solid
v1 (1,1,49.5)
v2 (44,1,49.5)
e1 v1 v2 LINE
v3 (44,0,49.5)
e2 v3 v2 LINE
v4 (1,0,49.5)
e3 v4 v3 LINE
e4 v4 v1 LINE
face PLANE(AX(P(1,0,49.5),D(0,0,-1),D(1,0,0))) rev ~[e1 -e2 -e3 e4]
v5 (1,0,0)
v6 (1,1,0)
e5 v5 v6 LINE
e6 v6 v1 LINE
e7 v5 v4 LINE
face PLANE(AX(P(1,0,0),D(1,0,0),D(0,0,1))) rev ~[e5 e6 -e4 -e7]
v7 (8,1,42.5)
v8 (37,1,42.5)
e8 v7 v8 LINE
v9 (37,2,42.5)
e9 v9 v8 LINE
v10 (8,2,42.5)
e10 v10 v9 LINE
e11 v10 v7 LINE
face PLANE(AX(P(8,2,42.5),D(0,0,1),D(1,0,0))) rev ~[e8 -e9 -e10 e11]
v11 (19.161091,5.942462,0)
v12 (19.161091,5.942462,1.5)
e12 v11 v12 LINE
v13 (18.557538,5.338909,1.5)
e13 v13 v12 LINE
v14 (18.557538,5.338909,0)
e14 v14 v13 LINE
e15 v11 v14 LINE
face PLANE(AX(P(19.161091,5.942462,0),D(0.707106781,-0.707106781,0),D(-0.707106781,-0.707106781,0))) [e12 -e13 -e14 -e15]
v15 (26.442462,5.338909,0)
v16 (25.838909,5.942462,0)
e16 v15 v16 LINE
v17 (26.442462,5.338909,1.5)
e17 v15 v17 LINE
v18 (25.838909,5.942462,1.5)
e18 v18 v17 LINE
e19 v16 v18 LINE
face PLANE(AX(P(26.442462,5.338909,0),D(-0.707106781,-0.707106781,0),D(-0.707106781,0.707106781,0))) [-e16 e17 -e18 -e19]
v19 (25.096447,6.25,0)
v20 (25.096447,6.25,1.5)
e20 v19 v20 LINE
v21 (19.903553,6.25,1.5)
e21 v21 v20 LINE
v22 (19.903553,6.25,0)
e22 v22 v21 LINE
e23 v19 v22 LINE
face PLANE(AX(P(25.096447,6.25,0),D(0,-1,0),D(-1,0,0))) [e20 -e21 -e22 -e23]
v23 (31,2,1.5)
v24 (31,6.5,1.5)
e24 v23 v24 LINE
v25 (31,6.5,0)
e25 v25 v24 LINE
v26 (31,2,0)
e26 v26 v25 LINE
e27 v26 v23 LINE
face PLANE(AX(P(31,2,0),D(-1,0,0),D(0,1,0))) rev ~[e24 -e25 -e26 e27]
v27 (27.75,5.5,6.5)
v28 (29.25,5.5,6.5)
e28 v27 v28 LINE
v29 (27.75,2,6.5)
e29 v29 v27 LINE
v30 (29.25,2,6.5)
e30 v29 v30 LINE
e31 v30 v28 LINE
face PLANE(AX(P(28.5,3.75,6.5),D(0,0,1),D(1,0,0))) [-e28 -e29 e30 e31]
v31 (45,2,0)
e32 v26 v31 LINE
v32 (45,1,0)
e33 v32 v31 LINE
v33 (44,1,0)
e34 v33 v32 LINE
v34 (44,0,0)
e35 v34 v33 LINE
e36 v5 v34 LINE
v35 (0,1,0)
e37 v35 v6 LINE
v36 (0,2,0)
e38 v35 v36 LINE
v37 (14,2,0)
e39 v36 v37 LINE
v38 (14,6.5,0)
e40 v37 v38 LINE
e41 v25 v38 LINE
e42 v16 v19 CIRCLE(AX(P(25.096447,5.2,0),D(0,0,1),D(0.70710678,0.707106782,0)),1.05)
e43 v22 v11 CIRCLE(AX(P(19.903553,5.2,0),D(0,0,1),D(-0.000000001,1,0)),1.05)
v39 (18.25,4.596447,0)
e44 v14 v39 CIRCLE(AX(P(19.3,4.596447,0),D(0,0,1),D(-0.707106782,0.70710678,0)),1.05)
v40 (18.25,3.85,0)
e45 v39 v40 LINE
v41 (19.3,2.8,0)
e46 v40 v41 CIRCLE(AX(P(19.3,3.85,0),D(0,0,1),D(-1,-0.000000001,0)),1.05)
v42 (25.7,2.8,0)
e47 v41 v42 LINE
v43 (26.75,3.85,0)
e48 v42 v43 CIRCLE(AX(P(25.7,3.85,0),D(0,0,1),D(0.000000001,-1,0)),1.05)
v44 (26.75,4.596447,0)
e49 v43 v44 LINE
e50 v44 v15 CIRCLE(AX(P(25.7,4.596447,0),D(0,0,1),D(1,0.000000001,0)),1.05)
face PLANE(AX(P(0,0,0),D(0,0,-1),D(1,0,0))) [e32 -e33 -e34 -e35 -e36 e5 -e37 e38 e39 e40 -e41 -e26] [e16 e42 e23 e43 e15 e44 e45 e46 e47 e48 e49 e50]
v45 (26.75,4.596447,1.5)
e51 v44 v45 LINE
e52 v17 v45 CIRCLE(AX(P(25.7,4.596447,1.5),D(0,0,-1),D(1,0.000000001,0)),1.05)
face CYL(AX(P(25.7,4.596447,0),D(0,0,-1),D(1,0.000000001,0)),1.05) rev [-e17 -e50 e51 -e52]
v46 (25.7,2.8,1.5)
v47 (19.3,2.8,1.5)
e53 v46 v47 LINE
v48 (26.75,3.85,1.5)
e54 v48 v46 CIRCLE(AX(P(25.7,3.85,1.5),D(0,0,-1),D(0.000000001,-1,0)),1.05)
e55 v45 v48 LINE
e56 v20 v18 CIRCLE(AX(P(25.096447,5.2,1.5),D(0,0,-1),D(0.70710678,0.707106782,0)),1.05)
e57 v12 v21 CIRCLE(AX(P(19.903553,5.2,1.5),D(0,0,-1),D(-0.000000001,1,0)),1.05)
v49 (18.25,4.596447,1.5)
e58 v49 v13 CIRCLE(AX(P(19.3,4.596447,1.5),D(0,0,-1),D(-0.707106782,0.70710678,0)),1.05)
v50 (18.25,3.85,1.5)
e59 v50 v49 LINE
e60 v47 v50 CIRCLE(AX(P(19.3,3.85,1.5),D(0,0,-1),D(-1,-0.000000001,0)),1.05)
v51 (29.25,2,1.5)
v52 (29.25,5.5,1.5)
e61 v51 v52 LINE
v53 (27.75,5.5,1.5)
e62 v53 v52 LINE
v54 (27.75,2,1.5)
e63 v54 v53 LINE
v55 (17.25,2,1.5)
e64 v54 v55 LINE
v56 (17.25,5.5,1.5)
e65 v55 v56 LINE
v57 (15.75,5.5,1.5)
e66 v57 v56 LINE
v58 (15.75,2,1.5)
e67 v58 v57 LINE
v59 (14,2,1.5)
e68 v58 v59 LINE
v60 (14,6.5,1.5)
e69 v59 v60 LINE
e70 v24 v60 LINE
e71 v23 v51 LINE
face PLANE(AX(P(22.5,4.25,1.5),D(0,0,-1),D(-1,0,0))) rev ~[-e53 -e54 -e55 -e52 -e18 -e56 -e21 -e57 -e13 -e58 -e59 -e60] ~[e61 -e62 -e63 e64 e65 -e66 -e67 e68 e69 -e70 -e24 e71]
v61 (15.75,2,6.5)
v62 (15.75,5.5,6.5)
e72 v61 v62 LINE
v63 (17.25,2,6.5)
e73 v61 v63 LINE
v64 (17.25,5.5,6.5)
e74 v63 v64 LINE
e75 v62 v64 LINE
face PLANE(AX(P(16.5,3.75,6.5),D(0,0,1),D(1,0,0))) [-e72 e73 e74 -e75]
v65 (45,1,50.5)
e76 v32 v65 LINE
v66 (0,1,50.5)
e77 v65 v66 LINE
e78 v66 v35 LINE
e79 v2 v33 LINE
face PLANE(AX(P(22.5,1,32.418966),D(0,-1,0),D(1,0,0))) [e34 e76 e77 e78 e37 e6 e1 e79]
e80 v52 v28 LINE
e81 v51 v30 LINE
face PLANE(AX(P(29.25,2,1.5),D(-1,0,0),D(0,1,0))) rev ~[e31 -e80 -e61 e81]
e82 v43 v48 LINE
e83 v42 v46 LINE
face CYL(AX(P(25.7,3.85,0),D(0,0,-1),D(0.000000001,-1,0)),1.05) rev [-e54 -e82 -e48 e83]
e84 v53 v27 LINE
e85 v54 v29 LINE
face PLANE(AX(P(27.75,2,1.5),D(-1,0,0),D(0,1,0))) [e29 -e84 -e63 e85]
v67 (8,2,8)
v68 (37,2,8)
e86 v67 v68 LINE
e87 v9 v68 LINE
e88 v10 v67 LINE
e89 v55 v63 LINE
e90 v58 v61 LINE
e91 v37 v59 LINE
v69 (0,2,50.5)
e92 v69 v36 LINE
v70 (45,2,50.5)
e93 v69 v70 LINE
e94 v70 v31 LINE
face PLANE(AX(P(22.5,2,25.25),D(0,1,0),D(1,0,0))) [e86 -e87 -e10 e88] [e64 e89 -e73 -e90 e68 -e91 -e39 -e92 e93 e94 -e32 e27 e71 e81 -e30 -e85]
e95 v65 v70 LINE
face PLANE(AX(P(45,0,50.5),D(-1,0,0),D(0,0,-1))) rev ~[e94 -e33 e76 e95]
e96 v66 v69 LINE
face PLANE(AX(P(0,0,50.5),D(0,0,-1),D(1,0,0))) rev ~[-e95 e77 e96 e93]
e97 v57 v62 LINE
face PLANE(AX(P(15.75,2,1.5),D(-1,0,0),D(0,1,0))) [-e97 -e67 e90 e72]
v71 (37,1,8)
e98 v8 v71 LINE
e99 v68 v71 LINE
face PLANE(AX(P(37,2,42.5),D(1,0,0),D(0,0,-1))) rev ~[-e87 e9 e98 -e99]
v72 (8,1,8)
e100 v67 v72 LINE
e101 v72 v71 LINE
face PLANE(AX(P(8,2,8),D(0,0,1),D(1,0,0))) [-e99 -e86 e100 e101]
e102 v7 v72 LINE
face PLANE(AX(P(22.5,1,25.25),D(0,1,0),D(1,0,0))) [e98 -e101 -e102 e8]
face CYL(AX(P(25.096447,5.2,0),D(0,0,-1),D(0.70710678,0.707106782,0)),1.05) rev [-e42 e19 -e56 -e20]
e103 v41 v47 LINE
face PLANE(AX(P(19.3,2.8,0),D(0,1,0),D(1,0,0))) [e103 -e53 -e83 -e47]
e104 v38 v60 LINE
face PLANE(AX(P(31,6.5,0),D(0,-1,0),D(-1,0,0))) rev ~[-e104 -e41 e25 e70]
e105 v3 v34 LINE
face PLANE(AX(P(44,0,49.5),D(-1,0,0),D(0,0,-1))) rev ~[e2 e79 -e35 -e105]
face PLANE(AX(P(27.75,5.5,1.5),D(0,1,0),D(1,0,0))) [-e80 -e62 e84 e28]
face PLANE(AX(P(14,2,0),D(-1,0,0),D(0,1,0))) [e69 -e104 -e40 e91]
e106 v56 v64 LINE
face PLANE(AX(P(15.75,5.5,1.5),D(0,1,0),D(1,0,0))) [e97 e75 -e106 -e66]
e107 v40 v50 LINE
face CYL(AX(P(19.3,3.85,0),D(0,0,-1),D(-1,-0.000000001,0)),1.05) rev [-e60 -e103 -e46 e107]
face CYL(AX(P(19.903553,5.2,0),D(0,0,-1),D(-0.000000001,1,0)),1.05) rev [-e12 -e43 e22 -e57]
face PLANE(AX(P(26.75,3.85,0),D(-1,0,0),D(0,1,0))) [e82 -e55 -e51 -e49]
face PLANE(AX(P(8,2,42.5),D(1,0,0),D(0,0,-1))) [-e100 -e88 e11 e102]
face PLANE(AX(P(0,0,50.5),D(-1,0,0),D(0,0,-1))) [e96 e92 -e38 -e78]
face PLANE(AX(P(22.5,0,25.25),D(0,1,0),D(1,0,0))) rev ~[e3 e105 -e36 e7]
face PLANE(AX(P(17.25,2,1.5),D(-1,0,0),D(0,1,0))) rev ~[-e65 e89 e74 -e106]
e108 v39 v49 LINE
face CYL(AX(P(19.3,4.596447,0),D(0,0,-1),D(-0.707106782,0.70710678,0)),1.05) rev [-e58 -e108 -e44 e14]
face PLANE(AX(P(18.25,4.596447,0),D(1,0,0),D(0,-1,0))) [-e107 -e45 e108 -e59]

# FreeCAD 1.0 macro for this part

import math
import FreeCAD as App
import Part
import Sketcher
Q = App.Units.Quantity

doc = App.newDocument("Part")
body = doc.addObject("PartDesign::Body", "Body")

sketch1 = body.newObject("Sketcher::SketchObject", "Sketch")
sketch1.AttachmentSupport = (doc.getObject("XZ_Plane"), [""])
sketch1.MapMode = "FlatFace"
sketch1.addGeometry(Part.LineSegment(App.Vector(0, 0, 0), App.Vector(0, 50, 0)), False)
sketch1.addGeometry(Part.LineSegment(App.Vector(0, 50, 0), App.Vector(45, 50, 0)), False)
sketch1.addGeometry(Part.LineSegment(App.Vector(45, 50, 0), App.Vector(45, 0, 0)), False)
sketch1.addGeometry(Part.LineSegment(App.Vector(45, 0, 0), App.Vector(0, 0, 0)), False)
sketch1.addConstraint(Sketcher.Constraint("Coincident", 0, 2, 1, 1))
sketch1.addConstraint(Sketcher.Constraint("Coincident", 1, 2, 2, 1))
sketch1.addConstraint(Sketcher.Constraint("Coincident", 2, 2, 3, 1))
sketch1.addConstraint(Sketcher.Constraint("Coincident", 3, 2, 0, 1))
sketch1.addConstraint(Sketcher.Constraint("Vertical", 0))
sketch1.addConstraint(Sketcher.Constraint("Horizontal", 1))
sketch1.addConstraint(Sketcher.Constraint("Vertical", 2))
sketch1.addConstraint(Sketcher.Constraint("Horizontal", 3))
sketch1.addConstraint(Sketcher.Constraint("Coincident", 3, 2, -1, 1))
sketch1.addConstraint(Sketcher.Constraint("DistanceX", 1, 1, 1, 2, Q("45 mm")))
sketch1.addConstraint(Sketcher.Constraint("DistanceY", 0, 1, 0, 2, Q("50.5 mm")))
pad1 = body.newObject("PartDesign::Pad", "Pad")
pad1.Profile = sketch1
pad1.Length = 2
pad1.Reversed = True

sketch2 = body.newObject("Sketcher::SketchObject", "Sketch001")
sketch2.AttachmentSupport = (doc.getObject("XZ_Plane"), [""])
sketch2.MapMode = "FlatFace"
sketch2.AttachmentOffset = App.Placement(App.Vector(0, 0, -2), App.Rotation())
sketch2.addGeometry(Part.LineSegment(App.Vector(8, 8, 0), App.Vector(8, 42, 0)), False)
sketch2.addGeometry(Part.LineSegment(App.Vector(8, 42, 0), App.Vector(37, 42, 0)), False)
sketch2.addGeometry(Part.LineSegment(App.Vector(37, 42, 0), App.Vector(37, 8, 0)), False)
sketch2.addGeometry(Part.LineSegment(App.Vector(37, 8, 0), App.Vector(8, 8, 0)), False)
sketch2.addConstraint(Sketcher.Constraint("Coincident", 0, 2, 1, 1))
sketch2.addConstraint(Sketcher.Constraint("Coincident", 1, 2, 2, 1))
sketch2.addConstraint(Sketcher.Constraint("Coincident", 2, 2, 3, 1))
sketch2.addConstraint(Sketcher.Constraint("Coincident", 3, 2, 0, 1))
sketch2.addConstraint(Sketcher.Constraint("Vertical", 0))
sketch2.addConstraint(Sketcher.Constraint("Horizontal", 1))
sketch2.addConstraint(Sketcher.Constraint("Vertical", 2))
sketch2.addConstraint(Sketcher.Constraint("Horizontal", 3))
sketch2.addConstraint(Sketcher.Constraint("DistanceX", 1, 1, 1, 2, Q("29 mm")))
sketch2.addConstraint(Sketcher.Constraint("DistanceY", 0, 1, 0, 2, Q("34.5 mm")))
sketch2.addConstraint(Sketcher.Constraint("DistanceX", -1, 1, 0, 2, Q("8 mm")))
sketch2.addConstraint(Sketcher.Constraint("DistanceY", -1, 1, 2, 2, Q("8 mm")))
pocket1 = body.newObject("PartDesign::Pocket", "Pocket")
pocket1.Profile = sketch2
pocket1.Length = 1
pocket1.Reversed = True

sketch3 = body.newObject("Sketcher::SketchObject", "Sketch002")
sketch3.AttachmentSupport = (doc.getObject("XZ_Plane"), [""])
sketch3.MapMode = "FlatFace"
sketch3.addGeometry(Part.LineSegment(App.Vector(45, 0, 0), App.Vector(45, 50.5, 0)), False)
sketch3.addGeometry(Part.LineSegment(App.Vector(45, 50.5, 0), App.Vector(0, 50.5, 0)), False)
sketch3.addGeometry(Part.LineSegment(App.Vector(0, 50.5, 0), App.Vector(0, 0, 0)), False)
sketch3.addGeometry(Part.LineSegment(App.Vector(0, 0, 0), App.Vector(1, 0, 0)), False)
sketch3.addGeometry(Part.LineSegment(App.Vector(1, 0, 0), App.Vector(1, 49.5, 0)), False)
sketch3.addGeometry(Part.LineSegment(App.Vector(1, 49.5, 0), App.Vector(44, 49.5, 0)), False)
sketch3.addGeometry(Part.LineSegment(App.Vector(44, 49.5, 0), App.Vector(44, 0, 0)), False)
sketch3.addGeometry(Part.LineSegment(App.Vector(44, 0, 0), App.Vector(45, 0, 0)), False)
sketch3.addConstraint(Sketcher.Constraint("Coincident", 0, 2, 1, 1))
sketch3.addConstraint(Sketcher.Constraint("Coincident", 1, 2, 2, 1))
sketch3.addConstraint(Sketcher.Constraint("Coincident", 2, 2, 3, 1))
sketch3.addConstraint(Sketcher.Constraint("Coincident", 3, 2, 4, 1))
sketch3.addConstraint(Sketcher.Constraint("Coincident", 4, 2, 5, 1))
sketch3.addConstraint(Sketcher.Constraint("Coincident", 5, 2, 6, 1))
sketch3.addConstraint(Sketcher.Constraint("Coincident", 6, 2, 7, 1))
sketch3.addConstraint(Sketcher.Constraint("Coincident", 7, 2, 0, 1))
sketch3.addConstraint(Sketcher.Constraint("Vertical", 0))
sketch3.addConstraint(Sketcher.Constraint("Horizontal", 1))
sketch3.addConstraint(Sketcher.Constraint("Vertical", 2))
sketch3.addConstraint(Sketcher.Constraint("Horizontal", 3))
sketch3.addConstraint(Sketcher.Constraint("Vertical", 4))
sketch3.addConstraint(Sketcher.Constraint("Horizontal", 5))
sketch3.addConstraint(Sketcher.Constraint("Vertical", 6))
sketch3.addConstraint(Sketcher.Constraint("Horizontal", 7))
sketch3.addConstraint(Sketcher.Constraint("Coincident", 2, 2, -1, 1))
sketch3.addConstraint(Sketcher.Constraint("PointOnObject", 6, 2, -1))
sketch3.addConstraint(Sketcher.Constraint("Equal", 3, 7))
sketch3.addConstraint(Sketcher.Constraint("DistanceX", 1, 2, 1, 1, Q("45 mm")))
sketch3.addConstraint(Sketcher.Constraint("DistanceX", 3, 1, 3, 2, Q("1 mm")))
sketch3.addConstraint(Sketcher.Constraint("DistanceY", 0, 1, 0, 2, Q("50.5 mm")))
sketch3.addConstraint(Sketcher.Constraint("DistanceY", 4, 1, 4, 2, Q("49.5 mm")))
pocket2 = body.newObject("PartDesign::Pocket", "Pocket001")
pocket2.Profile = sketch3
pocket2.Length = 1

sketch4 = body.newObject("Sketcher::SketchObject", "Sketch003")
sketch4.AttachmentSupport = (doc.getObject("XY_Plane"), [""])
sketch4.MapMode = "FlatFace"
sketch4.addGeometry(Part.LineSegment(App.Vector(31, 6.5, 0), App.Vector(31, 2, 0)), False)
sketch4.addGeometry(Part.LineSegment(App.Vector(31, 2, 0), App.Vector(14, 2, 0)), False)
sketch4.addGeometry(Part.LineSegment(App.Vector(14, 2, 0), App.Vector(14, 6.5, 0)), False)
sketch4.addGeometry(Part.LineSegment(App.Vector(14, 6.5, 0), App.Vector(31, 6.5, 0)), False)
sketch4.addConstraint(Sketcher.Constraint("Coincident", 0, 2, 1, 1))
sketch4.addConstraint(Sketcher.Constraint("Coincident", 1, 2, 2, 1))
sketch4.addConstraint(Sketcher.Constraint("Coincident", 2, 2, 3, 1))
sketch4.addConstraint(Sketcher.Constraint("Coincident", 3, 2, 0, 1))
sketch4.addConstraint(Sketcher.Constraint("Vertical", 0))
sketch4.addConstraint(Sketcher.Constraint("Horizontal", 1))
sketch4.addConstraint(Sketcher.Constraint("Vertical", 2))
sketch4.addConstraint(Sketcher.Constraint("Horizontal", 3))
sketch4.addConstraint(Sketcher.Constraint("DistanceX", 1, 2, 1, 1, Q("17 mm")))
sketch4.addConstraint(Sketcher.Constraint("DistanceY", 0, 2, 0, 1, Q("4.5 mm")))
sketch4.addConstraint(Sketcher.Constraint("DistanceX", -1, 1, 0, 2, Q("31 mm")))
sketch4.addConstraint(Sketcher.Constraint("DistanceY", -1, 1, 0, 2, Q("2 mm")))
pad2 = body.newObject("PartDesign::Pad", "Pad001")
pad2.Profile = sketch4
pad2.Length = 1.5

sketch5 = body.newObject("Sketcher::SketchObject", "Sketch004")
sketch5.AttachmentSupport = (doc.getObject("XY_Plane"), [""])
sketch5.MapMode = "FlatFace"
sketch5.addGeometry(Part.LineSegment(App.Vector(18.6, 5.3, 0), App.Vector(19.2, 5.9, 0)), False)
sketch5.addGeometry(Part.ArcOfCircle(Part.Circle(App.Vector(19.9, 5.2, 0), App.Vector(0, 0, 1), 1.1), math.radians(90), math.radians(135)), False)
sketch5.addGeometry(Part.LineSegment(App.Vector(19.9, 6.2, 0), App.Vector(25.1, 6.2, 0)), False)
sketch5.addGeometry(Part.ArcOfCircle(Part.Circle(App.Vector(25.1, 5.2, 0), App.Vector(0, 0, 1), 1.1), math.radians(45), math.radians(90)), False)
sketch5.addGeometry(Part.LineSegment(App.Vector(25.8, 5.9, 0), App.Vector(26.4, 5.3, 0)), False)
sketch5.addGeometry(Part.ArcOfCircle(Part.Circle(App.Vector(25.7, 4.6, 0), App.Vector(0, 0, 1), 1.1), math.radians(0), math.radians(45)), False)
sketch5.addGeometry(Part.LineSegment(App.Vector(26.8, 4.6, 0), App.Vector(26.8, 3.9, 0)), False)
sketch5.addGeometry(Part.ArcOfCircle(Part.Circle(App.Vector(25.7, 3.9, 0), App.Vector(0, 0, 1), 1.1), math.radians(-90), math.radians(0)), False)
sketch5.addGeometry(Part.LineSegment(App.Vector(25.7, 2.8, 0), App.Vector(19.3, 2.8, 0)), False)
sketch5.addGeometry(Part.ArcOfCircle(Part.Circle(App.Vector(19.3, 3.9, 0), App.Vector(0, 0, 1), 1.1), math.radians(-180), math.radians(-90)), False)
sketch5.addGeometry(Part.LineSegment(App.Vector(18.2, 3.9, 0), App.Vector(18.2, 4.6, 0)), False)
sketch5.addGeometry(Part.ArcOfCircle(Part.Circle(App.Vector(19.3, 4.6, 0), App.Vector(0, 0, 1), 1.1), math.radians(135), math.radians(180)), False)
sketch5.addConstraint(Sketcher.Constraint("Tangent", 0, 2, 1, 2))
sketch5.addConstraint(Sketcher.Constraint("Tangent", 1, 1, 2, 1))
sketch5.addConstraint(Sketcher.Constraint("Tangent", 2, 2, 3, 2))
sketch5.addConstraint(Sketcher.Constraint("Tangent", 3, 1, 4, 1))
sketch5.addConstraint(Sketcher.Constraint("Tangent", 4, 2, 5, 2))
sketch5.addConstraint(Sketcher.Constraint("Tangent", 5, 1, 6, 1))
sketch5.addConstraint(Sketcher.Constraint("Tangent", 6, 2, 7, 2))
sketch5.addConstraint(Sketcher.Constraint("Tangent", 7, 1, 8, 1))
sketch5.addConstraint(Sketcher.Constraint("Tangent", 8, 2, 9, 2))
sketch5.addConstraint(Sketcher.Constraint("Tangent", 9, 1, 10, 1))
sketch5.addConstraint(Sketcher.Constraint("Tangent", 10, 2, 11, 2))
sketch5.addConstraint(Sketcher.Constraint("Tangent", 11, 1, 0, 1))
sketch5.addConstraint(Sketcher.Constraint("Horizontal", 2))
sketch5.addConstraint(Sketcher.Constraint("Vertical", 6))
sketch5.addConstraint(Sketcher.Constraint("Horizontal", 8))
sketch5.addConstraint(Sketcher.Constraint("Vertical", 10))
sketch5.addConstraint(Sketcher.Constraint("Equal", 1, 3))
sketch5.addConstraint(Sketcher.Constraint("Equal", 3, 5))
sketch5.addConstraint(Sketcher.Constraint("Equal", 5, 7))
sketch5.addConstraint(Sketcher.Constraint("Equal", 7, 9))
sketch5.addConstraint(Sketcher.Constraint("Equal", 9, 11))
sketch5.addConstraint(Sketcher.Constraint("Perpendicular", 0, 4))
sketch5.addConstraint(Sketcher.Constraint("Horizontal", 5, 3, 11, 3))
sketch5.addConstraint(Sketcher.Constraint("Horizontal", 0, 2, 3, 1))
sketch5.addConstraint(Sketcher.Constraint("Radius", 1, Q("1.05 mm")))
sketch5.addConstraint(Sketcher.Constraint("DistanceX", 8, 2, 8, 1, Q("6.4 mm")))
sketch5.addConstraint(Sketcher.Constraint("DistanceY", -1, 1, 1, 3, Q("5.2 mm")))
sketch5.addConstraint(Sketcher.Constraint("DistanceX", -1, 1, 5, 3, Q("25.7 mm")))
sketch5.addConstraint(Sketcher.Constraint("DistanceY", -1, 1, 7, 1, Q("2.8 mm")))
sketch5.addConstraint(Sketcher.Constraint("DistanceX", 2, 1, 2, 2, Q("5.192893 mm")))
pocket3 = body.newObject("PartDesign::Pocket", "Pocket002")
pocket3.Profile = sketch5
pocket3.Type = "UpToFirst"
pocket3.Reversed = True

sketch6 = body.newObject("Sketcher::SketchObject", "Sketch005")
sketch6.AttachmentSupport = (doc.getObject("XY_Plane"), [""])
sketch6.MapMode = "FlatFace"
sketch6.AttachmentOffset = App.Placement(App.Vector(0, 0, 1.5), App.Rotation())
sketch6.addGeometry(Part.LineSegment(App.Vector(27.8, 5.5, 0), App.Vector(27.8, 2, 0)), False)
sketch6.addGeometry(Part.LineSegment(App.Vector(27.8, 2, 0), App.Vector(29.2, 2, 0)), False)
sketch6.addGeometry(Part.LineSegment(App.Vector(29.2, 2, 0), App.Vector(29.2, 5.5, 0)), False)
sketch6.addGeometry(Part.LineSegment(App.Vector(29.2, 5.5, 0), App.Vector(27.8, 5.5, 0)), False)
sketch6.addGeometry(Part.LineSegment(App.Vector(15.8, 5.5, 0), App.Vector(15.8, 2, 0)), False)
sketch6.addGeometry(Part.LineSegment(App.Vector(15.8, 2, 0), App.Vector(17.2, 2, 0)), False)
sketch6.addGeometry(Part.LineSegment(App.Vector(17.2, 2, 0), App.Vector(17.2, 5.5, 0)), False)
sketch6.addGeometry(Part.LineSegment(App.Vector(17.2, 5.5, 0), App.Vector(15.8, 5.5, 0)), False)
sketch6.addConstraint(Sketcher.Constraint("Coincident", 0, 2, 1, 1))
sketch6.addConstraint(Sketcher.Constraint("Coincident", 1, 2, 2, 1))
sketch6.addConstraint(Sketcher.Constraint("Coincident", 2, 2, 3, 1))
sketch6.addConstraint(Sketcher.Constraint("Coincident", 3, 2, 0, 1))
sketch6.addConstraint(Sketcher.Constraint("Coincident", 4, 2, 5, 1))
sketch6.addConstraint(Sketcher.Constraint("Coincident", 5, 2, 6, 1))
sketch6.addConstraint(Sketcher.Constraint("Coincident", 6, 2, 7, 1))
sketch6.addConstraint(Sketcher.Constraint("Coincident", 7, 2, 4, 1))
sketch6.addConstraint(Sketcher.Constraint("Vertical", 0))
sketch6.addConstraint(Sketcher.Constraint("Horizontal", 1))
sketch6.addConstraint(Sketcher.Constraint("Vertical", 2))
sketch6.addConstraint(Sketcher.Constraint("Horizontal", 3))
sketch6.addConstraint(Sketcher.Constraint("Vertical", 4))
sketch6.addConstraint(Sketcher.Constraint("Horizontal", 5))
sketch6.addConstraint(Sketcher.Constraint("Vertical", 6))
sketch6.addConstraint(Sketcher.Constraint("Horizontal", 7))
sketch6.addConstraint(Sketcher.Constraint("Horizontal", 1, 2, 4, 2))
sketch6.addConstraint(Sketcher.Constraint("Horizontal", 3, 2, 6, 2))
sketch6.addConstraint(Sketcher.Constraint("Equal", 3, 5))
sketch6.addConstraint(Sketcher.Constraint("DistanceX", 1, 1, 1, 2, Q("1.5 mm")))
sketch6.addConstraint(Sketcher.Constraint("DistanceY", 0, 2, 0, 1, Q("3.5 mm")))
sketch6.addConstraint(Sketcher.Constraint("DistanceY", -1, 1, 0, 2, Q("2 mm")))
sketch6.addConstraint(Sketcher.Constraint("DistanceX", 4, 2, 0, 2, Q("12 mm")))
sketch6.addConstraint(Sketcher.Constraint("DistanceX", -1, 1, 0, 2, Q("27.75 mm")))
pad3 = body.newObject("PartDesign::Pad", "Pad002")
pad3.Profile = sketch6
pad3.Length = 5

doc.recompute()
